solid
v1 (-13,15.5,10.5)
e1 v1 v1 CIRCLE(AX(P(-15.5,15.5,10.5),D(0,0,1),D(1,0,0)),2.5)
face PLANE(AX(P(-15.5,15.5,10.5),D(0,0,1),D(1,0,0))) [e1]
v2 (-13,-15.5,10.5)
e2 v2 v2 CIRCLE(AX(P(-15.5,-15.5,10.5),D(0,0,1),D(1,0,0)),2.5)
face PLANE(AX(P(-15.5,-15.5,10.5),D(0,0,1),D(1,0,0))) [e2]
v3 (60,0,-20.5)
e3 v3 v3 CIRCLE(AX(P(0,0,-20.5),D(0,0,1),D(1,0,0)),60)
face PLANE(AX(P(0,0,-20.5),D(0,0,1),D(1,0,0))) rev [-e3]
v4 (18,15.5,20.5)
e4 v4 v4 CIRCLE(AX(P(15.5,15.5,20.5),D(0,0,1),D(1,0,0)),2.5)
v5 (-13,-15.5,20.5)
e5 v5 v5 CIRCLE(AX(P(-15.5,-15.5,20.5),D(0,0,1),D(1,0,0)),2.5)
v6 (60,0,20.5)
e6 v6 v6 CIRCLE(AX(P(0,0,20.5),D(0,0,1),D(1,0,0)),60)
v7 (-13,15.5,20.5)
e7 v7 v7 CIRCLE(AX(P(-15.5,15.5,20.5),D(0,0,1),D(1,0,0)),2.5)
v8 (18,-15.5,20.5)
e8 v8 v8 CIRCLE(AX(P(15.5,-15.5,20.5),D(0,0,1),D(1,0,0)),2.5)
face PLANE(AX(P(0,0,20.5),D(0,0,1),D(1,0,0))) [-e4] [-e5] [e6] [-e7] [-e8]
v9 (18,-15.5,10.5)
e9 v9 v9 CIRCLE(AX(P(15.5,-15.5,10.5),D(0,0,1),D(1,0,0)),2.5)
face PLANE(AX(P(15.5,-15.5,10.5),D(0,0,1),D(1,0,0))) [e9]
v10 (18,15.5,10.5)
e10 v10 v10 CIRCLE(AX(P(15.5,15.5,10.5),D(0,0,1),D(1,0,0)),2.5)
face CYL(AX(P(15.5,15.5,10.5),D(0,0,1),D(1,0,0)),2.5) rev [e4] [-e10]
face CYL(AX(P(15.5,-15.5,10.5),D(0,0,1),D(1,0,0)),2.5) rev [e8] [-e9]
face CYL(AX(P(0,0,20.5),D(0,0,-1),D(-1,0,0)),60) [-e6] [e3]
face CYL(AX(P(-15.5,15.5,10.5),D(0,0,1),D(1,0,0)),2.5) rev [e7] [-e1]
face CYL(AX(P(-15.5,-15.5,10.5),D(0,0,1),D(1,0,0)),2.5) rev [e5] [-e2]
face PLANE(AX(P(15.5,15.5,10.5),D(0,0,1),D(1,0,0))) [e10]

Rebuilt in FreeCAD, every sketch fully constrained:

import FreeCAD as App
import Part
import Sketcher
Q = App.Units.Quantity

doc = App.newDocument("Part")
params = doc.addObject("Spreadsheet::Sheet", "Params")
for row, (alias, value) in enumerate([
    ("sketch1_diameter", "120 mm"),
    ("pad1_length", "41 mm"),
    ("sketch2_diameter", "5 mm"),
    ("pocket1_length", "10 mm"),
], start=1):
    params.set(f"A{row}", alias)
    params.set(f"B{row}", "=" + value)
    params.setAlias(f"B{row}", alias)

body = doc.addObject("PartDesign::Body", "Body")

sketch1 = doc.addObject("Sketcher::SketchObject", "Sketch")
body.addObject(sketch1)
sketch1.AttachmentSupport = (doc.XY_Plane, [""])
sketch1.MapMode = "FlatFace"
sketch1.addGeometry(Part.Circle(App.Vector(0, 0, 0), App.Vector(0, 0, 1), 60), False)
sketch1.addConstraint(Sketcher.Constraint("Coincident", 0, 3, -1, 1))
sketch1.addConstraint(Sketcher.Constraint("Diameter", 0, Q("120 mm")))
sketch1.setExpression("Constraints[1]", "Params.sketch1_diameter")
pad1 = doc.addObject("PartDesign::Pad", "Pad")
body.addObject(pad1)
pad1.Profile = sketch1
pad1.setExpression("Length", "Params.pad1_length")
pad1.Midplane = True

sketch2 = doc.addObject("Sketcher::SketchObject", "Sketch001")
body.addObject(sketch2)
sketch2.AttachmentSupport = (doc.XY_Plane, [""])
sketch2.MapMode = "FlatFace"
sketch2.AttachmentOffset = App.Placement(App.Vector(0, 0, 20.5), App.Rotation())
sketch2.addGeometry(Part.Circle(App.Vector(-15.5, 15.5, 0), App.Vector(0, 0, 1), 2.5), False)
sketch2.addGeometry(Part.Circle(App.Vector(15.5, 15.5, 0), App.Vector(0, 0, 1), 2.5), False)
sketch2.addGeometry(Part.Circle(App.Vector(15.5, -15.5, 0), App.Vector(0, 0, 1), 2.5), False)
sketch2.addGeometry(Part.Circle(App.Vector(-15.5, -15.5, 0), App.Vector(0, 0, 1), 2.5), False)
sketch2.addConstraint(Sketcher.Constraint("Equal", 0, 1))
sketch2.addConstraint(Sketcher.Constraint("Equal", 1, 2))
sketch2.addConstraint(Sketcher.Constraint("Equal", 2, 3))
sketch2.addConstraint(Sketcher.Constraint("Symmetric", 0, 3, 2, 3, -1, 1))
sketch2.addConstraint(Sketcher.Constraint("Symmetric", 1, 3, 3, 3, -1, 1))
sketch2.addConstraint(Sketcher.Constraint("Symmetric", 0, 3, 1, 3, -2))
sketch2.addConstraint(Sketcher.Constraint("Diameter", 0, Q("5 mm")))
sketch2.addConstraint(Sketcher.Constraint("DistanceX", 0, 3, 1, 3, Q("31 mm")))
sketch2.addConstraint(Sketcher.Constraint("DistanceY", 2, 3, 1, 3, Q("31 mm")))
sketch2.setExpression("Constraints[6]", "Params.sketch2_diameter")
pocket1 = doc.addObject("PartDesign::Pocket", "Pocket")
body.addObject(pocket1)
pocket1.Profile = sketch2
pocket1.setExpression("Length", "Params.pocket1_length")

doc.recompute()
